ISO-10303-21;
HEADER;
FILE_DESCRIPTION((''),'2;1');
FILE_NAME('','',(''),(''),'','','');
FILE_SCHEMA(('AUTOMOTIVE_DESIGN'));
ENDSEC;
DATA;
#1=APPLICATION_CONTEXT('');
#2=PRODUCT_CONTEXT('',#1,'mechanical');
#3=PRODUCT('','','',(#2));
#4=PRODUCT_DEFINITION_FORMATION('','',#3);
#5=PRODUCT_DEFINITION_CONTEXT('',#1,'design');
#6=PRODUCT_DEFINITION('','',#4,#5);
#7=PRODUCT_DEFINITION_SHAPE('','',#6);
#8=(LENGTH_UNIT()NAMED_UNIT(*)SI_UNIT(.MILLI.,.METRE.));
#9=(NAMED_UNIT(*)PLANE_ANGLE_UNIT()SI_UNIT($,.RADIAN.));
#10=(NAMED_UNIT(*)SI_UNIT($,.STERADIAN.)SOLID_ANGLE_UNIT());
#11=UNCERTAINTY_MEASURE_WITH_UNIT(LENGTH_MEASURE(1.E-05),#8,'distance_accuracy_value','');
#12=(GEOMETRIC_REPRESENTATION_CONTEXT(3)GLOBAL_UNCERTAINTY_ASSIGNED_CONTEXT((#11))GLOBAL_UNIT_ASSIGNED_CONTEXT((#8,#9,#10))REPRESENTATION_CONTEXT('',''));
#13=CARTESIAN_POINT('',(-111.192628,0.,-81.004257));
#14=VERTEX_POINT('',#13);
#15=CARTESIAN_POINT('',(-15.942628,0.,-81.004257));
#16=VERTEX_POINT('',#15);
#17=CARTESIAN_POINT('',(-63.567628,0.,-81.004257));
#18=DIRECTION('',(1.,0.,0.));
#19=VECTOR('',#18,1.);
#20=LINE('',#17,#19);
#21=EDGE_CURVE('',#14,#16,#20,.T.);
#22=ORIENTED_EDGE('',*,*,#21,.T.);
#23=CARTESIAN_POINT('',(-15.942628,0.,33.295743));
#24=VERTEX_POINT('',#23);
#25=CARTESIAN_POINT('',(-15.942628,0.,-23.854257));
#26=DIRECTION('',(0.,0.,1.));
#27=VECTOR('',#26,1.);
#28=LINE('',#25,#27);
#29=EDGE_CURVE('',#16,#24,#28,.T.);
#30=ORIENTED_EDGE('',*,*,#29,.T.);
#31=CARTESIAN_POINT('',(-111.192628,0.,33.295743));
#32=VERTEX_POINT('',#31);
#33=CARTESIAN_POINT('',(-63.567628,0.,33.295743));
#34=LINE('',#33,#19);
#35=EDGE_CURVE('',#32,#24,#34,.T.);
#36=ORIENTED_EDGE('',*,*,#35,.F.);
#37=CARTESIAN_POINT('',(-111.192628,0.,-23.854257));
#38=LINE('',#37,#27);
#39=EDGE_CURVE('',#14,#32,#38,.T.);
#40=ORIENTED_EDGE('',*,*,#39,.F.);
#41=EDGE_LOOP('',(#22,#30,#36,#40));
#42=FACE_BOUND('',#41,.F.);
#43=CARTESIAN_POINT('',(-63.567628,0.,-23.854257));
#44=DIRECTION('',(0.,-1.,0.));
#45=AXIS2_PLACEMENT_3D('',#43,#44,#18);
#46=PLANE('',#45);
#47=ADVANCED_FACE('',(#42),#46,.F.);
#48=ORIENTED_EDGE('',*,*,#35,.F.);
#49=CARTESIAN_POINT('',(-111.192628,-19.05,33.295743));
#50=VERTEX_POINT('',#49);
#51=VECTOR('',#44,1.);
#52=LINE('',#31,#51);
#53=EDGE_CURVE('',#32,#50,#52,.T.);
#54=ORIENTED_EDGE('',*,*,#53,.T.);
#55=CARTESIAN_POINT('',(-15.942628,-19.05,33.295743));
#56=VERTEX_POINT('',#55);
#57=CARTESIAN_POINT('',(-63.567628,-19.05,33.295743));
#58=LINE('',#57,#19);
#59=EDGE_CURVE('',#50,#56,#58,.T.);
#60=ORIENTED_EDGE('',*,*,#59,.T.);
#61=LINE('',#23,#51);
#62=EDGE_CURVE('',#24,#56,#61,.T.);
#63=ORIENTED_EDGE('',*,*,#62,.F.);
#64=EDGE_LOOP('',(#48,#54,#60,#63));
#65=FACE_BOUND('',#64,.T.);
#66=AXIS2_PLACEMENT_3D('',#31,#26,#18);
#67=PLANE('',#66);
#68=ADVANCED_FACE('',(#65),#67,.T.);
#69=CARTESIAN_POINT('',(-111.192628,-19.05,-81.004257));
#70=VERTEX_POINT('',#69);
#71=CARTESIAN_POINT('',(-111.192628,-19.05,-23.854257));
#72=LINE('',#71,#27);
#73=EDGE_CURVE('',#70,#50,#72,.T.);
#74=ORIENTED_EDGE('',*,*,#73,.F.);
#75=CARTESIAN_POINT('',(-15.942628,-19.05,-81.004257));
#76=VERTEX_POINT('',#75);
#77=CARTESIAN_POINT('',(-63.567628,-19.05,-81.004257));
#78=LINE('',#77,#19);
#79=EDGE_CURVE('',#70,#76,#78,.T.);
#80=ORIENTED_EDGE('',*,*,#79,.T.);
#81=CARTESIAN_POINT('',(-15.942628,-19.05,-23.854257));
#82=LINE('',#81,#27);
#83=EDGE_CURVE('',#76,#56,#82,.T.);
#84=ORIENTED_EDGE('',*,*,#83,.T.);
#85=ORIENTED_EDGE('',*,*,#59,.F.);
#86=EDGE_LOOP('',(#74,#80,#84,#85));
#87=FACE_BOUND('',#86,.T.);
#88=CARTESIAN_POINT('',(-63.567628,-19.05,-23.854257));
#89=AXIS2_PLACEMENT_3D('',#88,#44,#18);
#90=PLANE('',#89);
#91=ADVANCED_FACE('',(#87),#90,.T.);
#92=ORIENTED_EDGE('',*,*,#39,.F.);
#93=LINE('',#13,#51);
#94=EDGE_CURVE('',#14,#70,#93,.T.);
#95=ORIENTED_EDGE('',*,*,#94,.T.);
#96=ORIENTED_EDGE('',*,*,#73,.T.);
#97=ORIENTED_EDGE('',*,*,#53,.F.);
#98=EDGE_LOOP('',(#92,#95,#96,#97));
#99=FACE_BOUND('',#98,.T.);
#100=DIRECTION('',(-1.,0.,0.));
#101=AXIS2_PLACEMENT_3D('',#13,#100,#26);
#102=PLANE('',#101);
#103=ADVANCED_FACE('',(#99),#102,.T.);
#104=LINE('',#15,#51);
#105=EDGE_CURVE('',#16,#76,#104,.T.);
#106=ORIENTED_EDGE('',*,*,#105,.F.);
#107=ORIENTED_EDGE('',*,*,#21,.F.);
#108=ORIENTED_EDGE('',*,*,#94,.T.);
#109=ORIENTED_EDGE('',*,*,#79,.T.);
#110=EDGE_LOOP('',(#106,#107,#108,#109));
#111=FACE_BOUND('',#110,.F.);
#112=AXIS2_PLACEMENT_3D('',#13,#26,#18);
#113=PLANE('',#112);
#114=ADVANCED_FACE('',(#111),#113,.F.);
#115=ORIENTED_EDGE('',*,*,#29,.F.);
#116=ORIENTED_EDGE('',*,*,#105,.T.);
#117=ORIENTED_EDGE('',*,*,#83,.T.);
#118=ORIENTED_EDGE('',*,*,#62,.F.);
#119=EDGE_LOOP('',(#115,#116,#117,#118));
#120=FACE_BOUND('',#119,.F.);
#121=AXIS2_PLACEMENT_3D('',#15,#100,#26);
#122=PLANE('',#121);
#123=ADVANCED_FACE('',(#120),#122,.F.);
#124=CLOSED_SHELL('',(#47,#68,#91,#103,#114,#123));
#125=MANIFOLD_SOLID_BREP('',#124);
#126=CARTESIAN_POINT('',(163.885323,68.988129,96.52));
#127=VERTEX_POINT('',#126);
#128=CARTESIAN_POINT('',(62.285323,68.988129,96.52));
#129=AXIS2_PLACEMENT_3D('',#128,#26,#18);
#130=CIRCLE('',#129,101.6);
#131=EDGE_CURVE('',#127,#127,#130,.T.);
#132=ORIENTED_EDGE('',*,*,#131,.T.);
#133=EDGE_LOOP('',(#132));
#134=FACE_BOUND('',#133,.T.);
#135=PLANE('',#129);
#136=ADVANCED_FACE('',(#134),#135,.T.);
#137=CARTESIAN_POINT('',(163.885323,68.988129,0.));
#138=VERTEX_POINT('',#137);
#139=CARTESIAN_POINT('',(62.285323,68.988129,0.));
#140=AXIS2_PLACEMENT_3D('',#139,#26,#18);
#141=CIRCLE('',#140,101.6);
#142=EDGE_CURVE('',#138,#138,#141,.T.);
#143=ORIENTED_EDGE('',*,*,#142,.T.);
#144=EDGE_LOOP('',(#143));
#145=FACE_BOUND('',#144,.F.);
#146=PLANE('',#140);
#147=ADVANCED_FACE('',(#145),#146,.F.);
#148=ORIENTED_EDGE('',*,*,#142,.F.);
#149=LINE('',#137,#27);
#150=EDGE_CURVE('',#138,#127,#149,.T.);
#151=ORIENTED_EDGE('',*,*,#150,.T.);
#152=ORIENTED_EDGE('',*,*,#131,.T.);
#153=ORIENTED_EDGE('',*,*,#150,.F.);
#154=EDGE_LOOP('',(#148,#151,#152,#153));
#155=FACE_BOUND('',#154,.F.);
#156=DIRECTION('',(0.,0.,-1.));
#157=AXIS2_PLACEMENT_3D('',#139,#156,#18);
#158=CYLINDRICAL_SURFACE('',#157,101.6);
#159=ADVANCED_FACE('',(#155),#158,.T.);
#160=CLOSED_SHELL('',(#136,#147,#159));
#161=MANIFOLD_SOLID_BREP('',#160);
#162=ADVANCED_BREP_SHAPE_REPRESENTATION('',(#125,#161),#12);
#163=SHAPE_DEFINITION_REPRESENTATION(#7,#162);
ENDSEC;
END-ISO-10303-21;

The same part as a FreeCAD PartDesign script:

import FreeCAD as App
import Part
import Sketcher

V = App.Vector
Q = App.Units.Quantity

doc = App.newDocument("Part")
body = doc.addObject("PartDesign::Body", "Body")

# Sketch on XZ plane
sketch1 = doc.addObject("Sketcher::SketchObject", "Sketch")
body.addObject(sketch1)
sketch1.AttachmentSupport = (doc.XZ_Plane, [""])
sketch1.MapMode = "FlatFace"
sketch1.addGeometry([
    Part.LineSegment(V(-111, 33, 0), V(-111, -81, 0)),
    Part.LineSegment(V(-111, -81, 0), V(-16, -81, 0)),
    Part.LineSegment(V(-16, -81, 0), V(-16, 33, 0)),
    Part.LineSegment(V(-16, 33, 0), V(-111, 33, 0)),
], False)
sketch1.addConstraint([
    Sketcher.Constraint("Coincident", 0, 2, 1, 1),
    Sketcher.Constraint("Coincident", 1, 2, 2, 1),
    Sketcher.Constraint("Coincident", 2, 2, 3, 1),
    Sketcher.Constraint("Coincident", 3, 2, 0, 1),
    Sketcher.Constraint("Vertical", 0),
    Sketcher.Constraint("Horizontal", 1),
    Sketcher.Constraint("Vertical", 2),
    Sketcher.Constraint("Horizontal", 3),
    Sketcher.Constraint("DistanceY", 0, 2, 0, 1, Q("4.5 in")),
    Sketcher.Constraint("DistanceX", 1, 1, 1, 2, Q("3.75 in")),
    Sketcher.Constraint("DistanceX", 0, 2, -1, 1, 111.192628),
    Sketcher.Constraint("DistanceY", 0, 2, -1, 1, 81.004257),
])
pad1 = doc.addObject("PartDesign::Pad", "Pad")
body.addObject(pad1)
pad1.Profile = sketch1
pad1.Length = Q("0.75 in")
body2 = doc.addObject("PartDesign::Body", "Body001")

# Sketch on XY plane
sketch2 = doc.addObject("Sketcher::SketchObject", "Sketch001")
body2.addObject(sketch2)
sketch2.AttachmentSupport = (doc.getObject("XY_Plane001"), [""])
sketch2.MapMode = "FlatFace"
sketch2.addGeometry(Part.Circle(V(62, 69, 0), V(0, 0, 1), 102), False)
sketch2.addConstraint([
    Sketcher.Constraint("Diameter", 0, Q("8 in")),
    Sketcher.Constraint("DistanceY", -1, 1, 0, 3, 68.988129),
    Sketcher.Constraint("DistanceX", -1, 1, 0, 3, 62.285323),
])
pad2 = doc.addObject("PartDesign::Pad", "Pad001")
body2.addObject(pad2)
pad2.Profile = sketch2
pad2.Length = Q("3.8 in")

doc.recompute()
